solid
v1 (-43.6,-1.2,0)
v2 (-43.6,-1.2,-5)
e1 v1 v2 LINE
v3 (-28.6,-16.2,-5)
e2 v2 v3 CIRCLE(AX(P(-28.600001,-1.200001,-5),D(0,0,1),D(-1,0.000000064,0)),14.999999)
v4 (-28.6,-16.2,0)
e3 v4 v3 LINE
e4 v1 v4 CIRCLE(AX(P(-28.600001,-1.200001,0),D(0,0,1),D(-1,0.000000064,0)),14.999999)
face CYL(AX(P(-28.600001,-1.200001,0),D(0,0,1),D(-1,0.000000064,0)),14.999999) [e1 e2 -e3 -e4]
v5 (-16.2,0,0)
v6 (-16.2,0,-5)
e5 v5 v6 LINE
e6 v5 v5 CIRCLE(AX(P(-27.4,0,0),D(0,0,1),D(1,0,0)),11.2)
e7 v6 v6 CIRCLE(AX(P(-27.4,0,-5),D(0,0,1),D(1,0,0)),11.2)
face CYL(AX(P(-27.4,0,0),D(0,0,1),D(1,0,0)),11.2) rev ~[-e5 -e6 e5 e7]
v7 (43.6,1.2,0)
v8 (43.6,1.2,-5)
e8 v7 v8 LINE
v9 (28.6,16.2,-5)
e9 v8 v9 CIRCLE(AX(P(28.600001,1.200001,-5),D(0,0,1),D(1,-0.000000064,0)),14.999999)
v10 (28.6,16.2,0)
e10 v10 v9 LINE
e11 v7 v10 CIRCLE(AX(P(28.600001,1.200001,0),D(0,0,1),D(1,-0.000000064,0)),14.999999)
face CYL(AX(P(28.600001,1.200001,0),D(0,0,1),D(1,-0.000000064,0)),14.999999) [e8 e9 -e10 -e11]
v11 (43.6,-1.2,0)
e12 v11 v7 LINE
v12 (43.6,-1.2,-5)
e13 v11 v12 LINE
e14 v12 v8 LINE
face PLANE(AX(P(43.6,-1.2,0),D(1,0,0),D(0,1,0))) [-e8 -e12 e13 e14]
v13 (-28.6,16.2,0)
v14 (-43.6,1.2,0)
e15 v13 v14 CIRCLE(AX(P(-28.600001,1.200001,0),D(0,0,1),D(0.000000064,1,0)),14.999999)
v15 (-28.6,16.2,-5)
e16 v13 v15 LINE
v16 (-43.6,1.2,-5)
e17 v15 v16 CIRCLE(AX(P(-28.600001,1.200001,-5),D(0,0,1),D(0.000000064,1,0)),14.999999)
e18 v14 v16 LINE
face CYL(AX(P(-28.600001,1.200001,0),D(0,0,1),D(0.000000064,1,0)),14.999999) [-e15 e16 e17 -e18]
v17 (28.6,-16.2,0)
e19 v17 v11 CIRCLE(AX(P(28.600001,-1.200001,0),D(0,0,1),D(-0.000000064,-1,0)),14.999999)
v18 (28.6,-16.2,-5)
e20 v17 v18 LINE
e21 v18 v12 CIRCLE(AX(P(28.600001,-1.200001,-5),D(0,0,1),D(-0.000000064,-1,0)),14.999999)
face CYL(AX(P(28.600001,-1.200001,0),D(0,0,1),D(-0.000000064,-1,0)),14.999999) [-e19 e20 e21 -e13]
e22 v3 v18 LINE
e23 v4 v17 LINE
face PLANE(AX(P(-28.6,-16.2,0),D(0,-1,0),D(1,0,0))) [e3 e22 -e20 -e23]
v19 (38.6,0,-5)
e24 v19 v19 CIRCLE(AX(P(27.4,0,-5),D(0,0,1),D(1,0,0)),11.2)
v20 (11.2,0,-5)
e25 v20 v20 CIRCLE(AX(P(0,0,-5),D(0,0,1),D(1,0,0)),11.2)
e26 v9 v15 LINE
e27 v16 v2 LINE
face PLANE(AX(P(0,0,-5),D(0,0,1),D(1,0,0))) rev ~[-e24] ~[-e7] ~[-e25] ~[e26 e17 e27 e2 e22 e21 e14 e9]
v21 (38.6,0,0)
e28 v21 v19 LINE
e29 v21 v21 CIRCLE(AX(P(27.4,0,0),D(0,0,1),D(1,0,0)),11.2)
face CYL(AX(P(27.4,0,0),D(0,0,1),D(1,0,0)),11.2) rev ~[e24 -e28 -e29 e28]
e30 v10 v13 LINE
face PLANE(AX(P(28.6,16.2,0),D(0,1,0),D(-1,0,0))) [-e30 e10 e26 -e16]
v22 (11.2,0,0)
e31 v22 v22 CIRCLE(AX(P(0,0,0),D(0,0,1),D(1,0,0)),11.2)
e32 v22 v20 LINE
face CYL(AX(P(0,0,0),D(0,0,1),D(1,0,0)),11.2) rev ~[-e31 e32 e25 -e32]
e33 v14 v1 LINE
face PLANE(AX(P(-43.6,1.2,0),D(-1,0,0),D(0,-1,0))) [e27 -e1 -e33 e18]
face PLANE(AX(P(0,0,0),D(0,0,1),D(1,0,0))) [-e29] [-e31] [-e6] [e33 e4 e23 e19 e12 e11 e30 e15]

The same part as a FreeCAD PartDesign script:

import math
import FreeCAD as App
import Part
import Sketcher
from FreeCAD import Vector
Q = App.Units.Quantity

doc = App.newDocument("Part")
body = doc.addObject("PartDesign::Body", "Body")

sketch1 = body.newObject("Sketcher::SketchObject", "Sketch")
sketch1.AttachmentSupport = (doc.getObject("XY_Plane"), [""])
sketch1.MapMode = "FlatFace"
sketch1.addGeometry([
    Part.LineSegment(Vector(28.6, 16.2, 0), Vector(-28.6, 16.2, 0)),
    Part.ArcOfCircle(Part.Circle(Vector(-28.600001, 1.200001, 0), Vector(0, 0, 1), 14.999999), math.radians(89.999996), math.radians(180.000004)),
    Part.LineSegment(Vector(-43.6, 1.2, 0), Vector(-43.6, -1.2, 0)),
    Part.ArcOfCircle(Part.Circle(Vector(-28.600001, -1.200001, 0), Vector(0, 0, 1), 14.999999), math.radians(179.999996), math.radians(270.000004)),
    Part.LineSegment(Vector(-28.6, -16.2, 0), Vector(28.6, -16.2, 0)),
    Part.ArcOfCircle(Part.Circle(Vector(28.600001, -1.200001, 0), Vector(0, 0, 1), 14.999999), math.radians(-90.000004), math.radians(0.000004)),
    Part.LineSegment(Vector(43.6, -1.2, 0), Vector(43.6, 1.2, 0)),
    Part.ArcOfCircle(Part.Circle(Vector(28.600001, 1.200001, 0), Vector(0, 0, 1), 14.999999), math.radians(-0.000004), math.radians(90.000004)),
    Part.Circle(Vector(-27.4, 0, 0), Vector(0, 0, 1), 11.2),
    Part.Circle(Vector(0, 0, 0), Vector(0, 0, 1), 11.2),
    Part.Circle(Vector(27.4, 0, 0), Vector(0, 0, 1), 11.2),
], False)
sketch1.addConstraint([
    Sketcher.Constraint("Tangent", 0, 2, 1, 1),
    Sketcher.Constraint("Tangent", 1, 2, 2, 1),
    Sketcher.Constraint("Tangent", 2, 2, 3, 1),
    Sketcher.Constraint("Tangent", 3, 2, 4, 1),
    Sketcher.Constraint("Tangent", 4, 2, 5, 1),
    Sketcher.Constraint("Tangent", 5, 2, 6, 1),
    Sketcher.Constraint("Tangent", 6, 2, 7, 1),
    Sketcher.Constraint("Tangent", 7, 2, 0, 1),
    Sketcher.Constraint("Horizontal", 0),
    Sketcher.Constraint("Vertical", 2),
    Sketcher.Constraint("Horizontal", 4),
    Sketcher.Constraint("Vertical", 6),
    Sketcher.Constraint("Coincident", 9, 3, -1, 1),
    Sketcher.Constraint("Equal", 1, 3),
    Sketcher.Constraint("Equal", 3, 5),
    Sketcher.Constraint("Equal", 5, 7),
    Sketcher.Constraint("Equal", 8, 9),
    Sketcher.Constraint("Equal", 9, 10),
    Sketcher.Constraint("Symmetric", 1, 3, 5, 3, -1, 1),
    Sketcher.Constraint("Symmetric", 8, 3, 10, 3, -1, 1),
    Sketcher.Constraint("PointOnObject", 8, 3, -1),
    Sketcher.Constraint("Radius", 1, Q("14.999999 mm")),
    Sketcher.Constraint("Diameter", 8, Q("22.4 mm")),
    Sketcher.Constraint("DistanceX", 0, 2, 0, 1, Q("57.2 mm")),
    Sketcher.Constraint("DistanceY", 2, 2, 2, 1, Q("2.4 mm")),
    Sketcher.Constraint("DistanceX", 8, 3, 5, 3, Q("56.000001 mm")),
])
pad1 = body.newObject("PartDesign::Pad", "Pad")
pad1.Profile = sketch1
pad1.Length = 5
pad1.Reversed = True

doc.recompute()
